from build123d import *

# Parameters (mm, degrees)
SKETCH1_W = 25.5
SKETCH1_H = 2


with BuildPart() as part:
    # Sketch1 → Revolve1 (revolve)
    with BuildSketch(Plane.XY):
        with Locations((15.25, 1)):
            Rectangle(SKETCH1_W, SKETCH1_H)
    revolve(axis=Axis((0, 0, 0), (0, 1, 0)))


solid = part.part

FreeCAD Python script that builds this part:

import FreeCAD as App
import Part
import Sketcher
from FreeCAD import Vector
Q = App.Units.Quantity


def add_polygon(sketch, points):
    """Adds a closed chain of lines whose ends are joined by coincident constraints."""
    first, n = sketch.GeometryCount, len(points)
    for a, b in zip(points, points[1:] + points[:1]):
        sketch.addGeometry(Part.LineSegment(App.Vector(*a, 0), App.Vector(*b, 0)), False)
    for i in range(n):
        sketch.addConstraint(Sketcher.Constraint("Coincident", first + i, 2, first + (i + 1) % n, 1))

doc = App.newDocument("Part")
body = doc.addObject("PartDesign::Body", "Body")

sketch1 = doc.addObject("Sketcher::SketchObject", "Sketch")
body.addObject(sketch1)
sketch1.AttachmentSupport = (doc.XY_Plane, [""])
sketch1.MapMode = "FlatFace"
add_polygon(sketch1, [(2.5, 2), (2.5, 0), (28, 0), (28, 2)])
sketch1.addConstraint(Sketcher.Constraint("Vertical", 0))
sketch1.addConstraint(Sketcher.Constraint("Horizontal", 1))
sketch1.addConstraint(Sketcher.Constraint("Vertical", 2))
sketch1.addConstraint(Sketcher.Constraint("Horizontal", 3))
sketch1.addConstraint(Sketcher.Constraint("PointOnObject", 0, 2, -1))
sketch1.addConstraint(Sketcher.Constraint("DistanceY", 0, 2, 0, 1, Q("2 mm")))
sketch1.addConstraint(Sketcher.Constraint("DistanceX", 1, 1, 1, 2, Q("25.5 mm")))
sketch1.addConstraint(Sketcher.Constraint("DistanceX", -1, 1, 1, 2, Q("28 mm")))
revolution = doc.addObject("PartDesign::Revolution", "Revolution")
body.addObject(revolution)
revolution.Profile = sketch1
revolution.ReferenceAxis = (sketch1, ["V_Axis"])
revolution.Angle = 360

doc.recompute()
